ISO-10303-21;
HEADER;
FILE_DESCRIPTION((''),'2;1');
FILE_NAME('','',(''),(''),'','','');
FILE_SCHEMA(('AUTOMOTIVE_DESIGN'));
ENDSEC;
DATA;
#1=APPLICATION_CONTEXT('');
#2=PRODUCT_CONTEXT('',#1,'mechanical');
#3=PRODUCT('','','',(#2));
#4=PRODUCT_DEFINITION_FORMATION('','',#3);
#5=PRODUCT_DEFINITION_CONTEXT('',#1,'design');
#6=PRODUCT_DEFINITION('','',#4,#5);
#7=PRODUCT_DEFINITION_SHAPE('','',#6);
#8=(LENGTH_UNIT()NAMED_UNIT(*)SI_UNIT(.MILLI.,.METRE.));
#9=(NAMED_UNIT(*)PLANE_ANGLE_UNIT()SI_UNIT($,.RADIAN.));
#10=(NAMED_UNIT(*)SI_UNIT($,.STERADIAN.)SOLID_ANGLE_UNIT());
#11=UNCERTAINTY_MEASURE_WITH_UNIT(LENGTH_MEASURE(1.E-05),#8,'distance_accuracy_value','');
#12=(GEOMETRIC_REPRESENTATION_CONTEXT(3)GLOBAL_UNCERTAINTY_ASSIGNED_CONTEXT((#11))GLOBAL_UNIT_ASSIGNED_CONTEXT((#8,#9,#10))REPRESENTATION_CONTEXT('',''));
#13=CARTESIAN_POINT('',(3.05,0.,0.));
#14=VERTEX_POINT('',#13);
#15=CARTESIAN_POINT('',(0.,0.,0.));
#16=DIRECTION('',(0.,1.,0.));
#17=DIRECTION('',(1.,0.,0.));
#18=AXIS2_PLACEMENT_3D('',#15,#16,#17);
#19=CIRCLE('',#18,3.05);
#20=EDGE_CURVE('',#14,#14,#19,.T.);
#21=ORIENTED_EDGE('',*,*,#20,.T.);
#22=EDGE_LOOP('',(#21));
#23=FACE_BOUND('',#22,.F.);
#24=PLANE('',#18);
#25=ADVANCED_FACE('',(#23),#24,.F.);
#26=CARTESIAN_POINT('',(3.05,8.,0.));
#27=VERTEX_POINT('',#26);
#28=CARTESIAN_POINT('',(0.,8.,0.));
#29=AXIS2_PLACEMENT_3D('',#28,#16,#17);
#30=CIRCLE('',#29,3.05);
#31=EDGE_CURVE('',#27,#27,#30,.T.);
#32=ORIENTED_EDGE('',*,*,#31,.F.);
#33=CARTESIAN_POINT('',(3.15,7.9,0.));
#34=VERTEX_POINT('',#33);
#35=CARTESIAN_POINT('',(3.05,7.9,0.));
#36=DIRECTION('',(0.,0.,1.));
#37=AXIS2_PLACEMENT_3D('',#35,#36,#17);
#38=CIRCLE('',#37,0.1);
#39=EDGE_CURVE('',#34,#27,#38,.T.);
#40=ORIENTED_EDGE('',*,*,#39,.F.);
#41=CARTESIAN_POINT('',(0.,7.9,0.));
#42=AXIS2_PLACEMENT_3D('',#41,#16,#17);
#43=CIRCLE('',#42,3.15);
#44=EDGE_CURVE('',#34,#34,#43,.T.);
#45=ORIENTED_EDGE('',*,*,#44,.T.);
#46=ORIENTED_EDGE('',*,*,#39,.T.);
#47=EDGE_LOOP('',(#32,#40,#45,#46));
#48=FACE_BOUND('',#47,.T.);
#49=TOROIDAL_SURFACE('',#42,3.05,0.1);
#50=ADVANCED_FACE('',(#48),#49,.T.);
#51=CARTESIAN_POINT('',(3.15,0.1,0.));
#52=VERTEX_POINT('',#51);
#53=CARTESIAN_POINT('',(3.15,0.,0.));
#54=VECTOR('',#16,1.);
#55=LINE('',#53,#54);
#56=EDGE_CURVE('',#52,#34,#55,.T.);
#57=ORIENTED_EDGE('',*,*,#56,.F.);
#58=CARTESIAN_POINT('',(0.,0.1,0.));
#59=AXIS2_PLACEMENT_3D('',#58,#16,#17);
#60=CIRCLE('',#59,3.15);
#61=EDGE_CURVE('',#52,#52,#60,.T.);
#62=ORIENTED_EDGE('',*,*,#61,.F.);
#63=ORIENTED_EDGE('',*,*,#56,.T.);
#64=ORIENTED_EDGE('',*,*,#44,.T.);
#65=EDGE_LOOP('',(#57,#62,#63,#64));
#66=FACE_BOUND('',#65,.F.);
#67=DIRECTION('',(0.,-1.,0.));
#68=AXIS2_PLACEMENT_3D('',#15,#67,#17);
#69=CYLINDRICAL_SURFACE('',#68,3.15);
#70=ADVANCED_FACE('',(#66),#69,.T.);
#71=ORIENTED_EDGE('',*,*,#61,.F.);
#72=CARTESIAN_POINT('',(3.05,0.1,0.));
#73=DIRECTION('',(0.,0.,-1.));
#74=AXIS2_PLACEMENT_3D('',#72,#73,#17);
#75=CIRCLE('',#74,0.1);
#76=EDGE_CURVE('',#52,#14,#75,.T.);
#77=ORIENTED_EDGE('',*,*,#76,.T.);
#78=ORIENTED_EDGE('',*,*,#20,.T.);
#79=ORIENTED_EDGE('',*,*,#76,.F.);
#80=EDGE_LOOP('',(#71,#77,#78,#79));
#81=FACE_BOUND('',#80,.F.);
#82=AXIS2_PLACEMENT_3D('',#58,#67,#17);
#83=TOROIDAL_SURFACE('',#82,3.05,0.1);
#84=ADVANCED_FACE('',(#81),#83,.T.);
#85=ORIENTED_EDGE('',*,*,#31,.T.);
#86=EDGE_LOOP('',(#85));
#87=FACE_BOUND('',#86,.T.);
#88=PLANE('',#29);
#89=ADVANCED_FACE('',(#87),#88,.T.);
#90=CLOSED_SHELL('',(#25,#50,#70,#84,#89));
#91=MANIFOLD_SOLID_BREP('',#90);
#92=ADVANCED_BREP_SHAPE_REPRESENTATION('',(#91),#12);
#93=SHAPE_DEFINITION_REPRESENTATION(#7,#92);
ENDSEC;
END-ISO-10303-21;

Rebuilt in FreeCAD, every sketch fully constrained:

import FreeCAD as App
import Part
import Sketcher
from FreeCAD import Vector


def edges_at(feature, points):
    """Names of the edges that pass closest to the given points."""
    edges = feature.Shape.Edges
    near = lambda p: min(range(len(edges)), key=lambda i: edges[i].distToShape(Part.Vertex(*p))[0])
    return sorted({f"Edge{near(p) + 1}" for p in points})

doc = App.newDocument("Part")
params = doc.addObject("Spreadsheet::Sheet", "Params")
for row, (alias, value) in enumerate([
    ("sketch1_diameter", "6.3 mm"),
    ("pad1_length", "8 mm"),
    ("fillet_radius", "0.1 mm"),
    ("fillet2_radius", "0.1 mm"),
], start=1):
    params.set(f"A{row}", alias)
    params.set(f"B{row}", "=" + value)
    params.setAlias(f"B{row}", alias)

body = doc.addObject("PartDesign::Body", "Body")

# Sketch on XZ plane
sketch1 = body.newObject("Sketcher::SketchObject", "Sketch")
sketch1.AttachmentSupport = (doc.getObject("XZ_Plane"), [""])
sketch1.MapMode = "FlatFace"
sketch1.addGeometry(Part.Circle(Vector(0, 0, 0), Vector(0, 0, 1), 3.15), False)
sketch1.addConstraint([
    Sketcher.Constraint("Coincident", 0, 3, -1, 1),
    Sketcher.Constraint("Diameter", 0, 6.3),
])
sketch1.setExpression("Constraints[1]", "Params.sketch1_diameter")
pad1 = body.newObject("PartDesign::Pad", "Pad")
pad1.Profile = sketch1
pad1.setExpression("Length", "Params.pad1_length")
pad1.Reversed = True
doc.recompute()

fillet = body.newObject("PartDesign::Fillet", "Fillet")
fillet.Base = (pad1, edges_at(pad1, [(-3.15, 8, 0)]))
fillet.setExpression("Radius", "Params.fillet_radius")
doc.recompute()

fillet2 = body.newObject("PartDesign::Fillet", "Fillet001")
fillet2.Base = (fillet, edges_at(fillet, [(-3.15, 0, 0)]))
fillet2.setExpression("Radius", "Params.fillet2_radius")

doc.recompute()
